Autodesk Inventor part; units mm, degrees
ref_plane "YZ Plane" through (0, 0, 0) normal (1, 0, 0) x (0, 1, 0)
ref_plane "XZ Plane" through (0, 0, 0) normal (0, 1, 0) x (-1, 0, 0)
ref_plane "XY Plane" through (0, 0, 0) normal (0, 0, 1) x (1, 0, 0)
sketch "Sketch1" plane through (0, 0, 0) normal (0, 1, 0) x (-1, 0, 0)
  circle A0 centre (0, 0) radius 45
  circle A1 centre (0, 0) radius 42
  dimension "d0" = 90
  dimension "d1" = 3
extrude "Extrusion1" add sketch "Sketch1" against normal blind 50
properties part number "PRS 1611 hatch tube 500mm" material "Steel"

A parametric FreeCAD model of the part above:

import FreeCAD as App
import Part
import Sketcher

V = App.Vector
Q = App.Units.Quantity

doc = App.newDocument("Part")
params = doc.addObject("Spreadsheet::Sheet", "Params")
for row, (alias, value) in enumerate([
    ("sketch1_diameter", "90 mm"),
    ("sketch1_diameter2", "84 mm"),
    ("pad1_length", "50 mm"),
], start=1):
    params.set(f"A{row}", alias)
    params.set(f"B{row}", "=" + value)
    params.setAlias(f"B{row}", alias)

body = doc.addObject("PartDesign::Body", "Body")

sketch1 = body.newObject("Sketcher::SketchObject", "Sketch")
sketch1.AttachmentSupport = (doc.getObject("XZ_Plane"), [""])
sketch1.MapMode = "FlatFace"
sketch1.addGeometry([
    Part.Circle(V(0, 0, 0), V(0, 0, 1), 45),
    Part.Circle(V(0, 0, 0), V(0, 0, 1), 42),
], False)
sketch1.addConstraint([
    Sketcher.Constraint("Coincident", 0, 3, -1, 1),
    Sketcher.Constraint("Coincident", 1, 3, -1, 1),
    Sketcher.Constraint("Diameter", 0, Q("90 mm")),
    Sketcher.Constraint("Diameter", 1, Q("84 mm")),
])
sketch1.setExpression("Constraints[2]", "Params.sketch1_diameter")
sketch1.setExpression("Constraints[3]", "Params.sketch1_diameter2")
pad1 = body.newObject("PartDesign::Pad", "Pad")
pad1.Profile = sketch1
pad1.setExpression("Length", "Params.pad1_length")

doc.recompute()
